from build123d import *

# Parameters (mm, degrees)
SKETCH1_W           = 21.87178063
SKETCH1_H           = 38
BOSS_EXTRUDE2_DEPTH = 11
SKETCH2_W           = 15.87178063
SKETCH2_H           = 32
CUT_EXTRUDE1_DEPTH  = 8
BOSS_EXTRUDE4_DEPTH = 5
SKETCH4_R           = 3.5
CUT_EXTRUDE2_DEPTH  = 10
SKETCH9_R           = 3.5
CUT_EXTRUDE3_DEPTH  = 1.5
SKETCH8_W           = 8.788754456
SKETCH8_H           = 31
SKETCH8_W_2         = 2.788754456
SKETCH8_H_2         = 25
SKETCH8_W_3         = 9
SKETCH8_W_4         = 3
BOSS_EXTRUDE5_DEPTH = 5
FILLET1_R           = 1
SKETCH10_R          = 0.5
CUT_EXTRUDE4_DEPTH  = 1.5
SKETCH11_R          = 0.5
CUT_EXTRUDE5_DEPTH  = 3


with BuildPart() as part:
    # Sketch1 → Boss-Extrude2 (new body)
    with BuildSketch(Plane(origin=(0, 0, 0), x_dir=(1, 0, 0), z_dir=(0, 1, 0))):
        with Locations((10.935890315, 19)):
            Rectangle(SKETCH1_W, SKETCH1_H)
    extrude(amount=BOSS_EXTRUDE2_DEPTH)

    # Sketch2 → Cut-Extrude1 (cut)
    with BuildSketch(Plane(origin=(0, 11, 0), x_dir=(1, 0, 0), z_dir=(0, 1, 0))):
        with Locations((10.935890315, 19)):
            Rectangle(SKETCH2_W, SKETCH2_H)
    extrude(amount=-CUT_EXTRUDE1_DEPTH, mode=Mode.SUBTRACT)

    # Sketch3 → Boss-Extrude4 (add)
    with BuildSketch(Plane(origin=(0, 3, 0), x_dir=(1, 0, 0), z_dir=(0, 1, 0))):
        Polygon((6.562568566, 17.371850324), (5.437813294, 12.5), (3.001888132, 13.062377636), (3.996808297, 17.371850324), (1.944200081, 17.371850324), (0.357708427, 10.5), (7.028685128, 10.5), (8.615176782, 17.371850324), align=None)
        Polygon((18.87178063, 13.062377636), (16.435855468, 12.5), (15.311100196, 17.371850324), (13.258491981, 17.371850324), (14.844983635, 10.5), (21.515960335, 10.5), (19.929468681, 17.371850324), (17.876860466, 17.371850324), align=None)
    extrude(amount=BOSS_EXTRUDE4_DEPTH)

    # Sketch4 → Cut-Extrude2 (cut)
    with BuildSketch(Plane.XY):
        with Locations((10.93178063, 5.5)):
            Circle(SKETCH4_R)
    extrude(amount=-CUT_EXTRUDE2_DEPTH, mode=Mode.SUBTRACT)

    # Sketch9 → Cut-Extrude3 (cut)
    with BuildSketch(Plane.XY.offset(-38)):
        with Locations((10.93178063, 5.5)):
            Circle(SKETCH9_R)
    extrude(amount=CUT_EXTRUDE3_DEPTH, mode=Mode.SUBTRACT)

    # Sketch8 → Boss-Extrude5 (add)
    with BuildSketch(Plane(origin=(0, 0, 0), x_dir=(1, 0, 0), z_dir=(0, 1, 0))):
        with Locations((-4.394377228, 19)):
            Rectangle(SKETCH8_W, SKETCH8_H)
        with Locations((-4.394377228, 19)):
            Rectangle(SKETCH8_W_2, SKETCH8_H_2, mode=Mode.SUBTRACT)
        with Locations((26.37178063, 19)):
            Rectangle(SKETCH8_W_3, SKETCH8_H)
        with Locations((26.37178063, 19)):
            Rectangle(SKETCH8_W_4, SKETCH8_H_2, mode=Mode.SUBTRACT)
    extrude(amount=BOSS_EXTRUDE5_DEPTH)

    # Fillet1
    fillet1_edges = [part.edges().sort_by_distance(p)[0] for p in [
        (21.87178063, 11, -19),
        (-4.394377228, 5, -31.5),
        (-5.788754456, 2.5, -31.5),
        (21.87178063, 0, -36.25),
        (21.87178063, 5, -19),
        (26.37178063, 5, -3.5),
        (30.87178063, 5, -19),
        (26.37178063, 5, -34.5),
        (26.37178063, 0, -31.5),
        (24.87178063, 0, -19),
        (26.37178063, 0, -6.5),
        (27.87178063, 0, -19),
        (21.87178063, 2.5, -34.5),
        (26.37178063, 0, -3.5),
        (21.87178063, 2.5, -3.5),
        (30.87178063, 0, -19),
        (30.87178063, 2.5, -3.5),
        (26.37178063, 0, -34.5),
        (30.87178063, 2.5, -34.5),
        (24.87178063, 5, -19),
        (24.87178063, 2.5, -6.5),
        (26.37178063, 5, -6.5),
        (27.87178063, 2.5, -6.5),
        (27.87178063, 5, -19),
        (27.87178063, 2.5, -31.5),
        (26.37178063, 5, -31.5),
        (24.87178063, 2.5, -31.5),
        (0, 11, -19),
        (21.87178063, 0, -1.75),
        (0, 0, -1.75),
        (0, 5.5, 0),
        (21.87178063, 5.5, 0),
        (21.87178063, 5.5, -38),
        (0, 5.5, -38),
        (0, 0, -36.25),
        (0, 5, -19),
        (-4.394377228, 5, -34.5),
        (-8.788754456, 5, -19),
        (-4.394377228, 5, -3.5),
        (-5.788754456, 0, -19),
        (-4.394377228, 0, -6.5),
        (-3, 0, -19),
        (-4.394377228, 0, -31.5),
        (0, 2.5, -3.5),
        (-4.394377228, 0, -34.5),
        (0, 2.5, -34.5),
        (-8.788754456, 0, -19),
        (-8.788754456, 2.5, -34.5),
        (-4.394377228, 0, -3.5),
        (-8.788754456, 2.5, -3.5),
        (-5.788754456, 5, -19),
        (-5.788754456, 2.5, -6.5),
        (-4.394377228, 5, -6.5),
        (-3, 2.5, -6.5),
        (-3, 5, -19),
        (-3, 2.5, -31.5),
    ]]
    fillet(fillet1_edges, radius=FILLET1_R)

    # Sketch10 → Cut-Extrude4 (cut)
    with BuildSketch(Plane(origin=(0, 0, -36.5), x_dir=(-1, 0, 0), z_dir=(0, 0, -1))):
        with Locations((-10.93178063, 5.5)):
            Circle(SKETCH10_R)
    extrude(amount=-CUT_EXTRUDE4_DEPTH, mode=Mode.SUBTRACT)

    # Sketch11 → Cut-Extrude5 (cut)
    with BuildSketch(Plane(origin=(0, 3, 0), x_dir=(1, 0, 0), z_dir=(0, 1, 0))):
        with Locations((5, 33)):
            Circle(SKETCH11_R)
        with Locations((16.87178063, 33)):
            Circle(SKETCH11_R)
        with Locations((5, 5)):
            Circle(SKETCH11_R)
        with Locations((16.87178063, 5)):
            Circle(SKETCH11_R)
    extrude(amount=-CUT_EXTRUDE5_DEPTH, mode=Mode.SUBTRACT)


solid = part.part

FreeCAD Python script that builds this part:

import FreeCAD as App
import Part
import Sketcher

V = App.Vector
Q = App.Units.Quantity


def edges_at(feature, points):
    """Names of the edges that pass closest to the given points."""
    edges = feature.Shape.Edges
    near = lambda p: min(range(len(edges)), key=lambda i: edges[i].distToShape(Part.Vertex(*p))[0])
    return sorted({f"Edge{near(p) + 1}" for p in points})

doc = App.newDocument("Part")
body = doc.addObject("PartDesign::Body", "Body")

# Sketch on XZ plane
sketch1 = body.newObject("Sketcher::SketchObject", "Sketch")
sketch1.AttachmentSupport = (doc.getObject("XZ_Plane"), [""])
sketch1.MapMode = "FlatFace"
sketch1.addGeometry([
    Part.LineSegment(V(0, -38, 0), V(0, 0, 0)),
    Part.LineSegment(V(0, 0, 0), V(21.871781, 0, 0)),
    Part.LineSegment(V(21.871781, 0, 0), V(21.871781, -38, 0)),
    Part.LineSegment(V(21.871781, -38, 0), V(0, -38, 0)),
], False)
sketch1.addConstraint([
    Sketcher.Constraint("Coincident", 0, 2, 1, 1),
    Sketcher.Constraint("Coincident", 1, 2, 2, 1),
    Sketcher.Constraint("Coincident", 2, 2, 3, 1),
    Sketcher.Constraint("Coincident", 3, 2, 0, 1),
    Sketcher.Constraint("Vertical", 0),
    Sketcher.Constraint("Horizontal", 1),
    Sketcher.Constraint("Vertical", 2),
    Sketcher.Constraint("Horizontal", 3),
    Sketcher.Constraint("Coincident", 0, 2, -1, 1),
    Sketcher.Constraint("DistanceY", 0, 1, 0, 2, 38.0),
    Sketcher.Constraint("DistanceX", 1, 1, 1, 2, 21.871781),
])
pad1 = body.newObject("PartDesign::Pad", "Pad")
pad1.Profile = sketch1
pad1.Length = 11
pad1.Reversed = True

# Sketch on XZ plane
sketch2 = body.newObject("Sketcher::SketchObject", "Sketch001")
sketch2.AttachmentSupport = (doc.getObject("XZ_Plane"), [""])
sketch2.MapMode = "FlatFace"
sketch2.AttachmentOffset = App.Placement(V(0, 0, -11), App.Rotation())
sketch2.addGeometry([
    Part.LineSegment(V(3, -35, 0), V(3, -3, 0)),
    Part.LineSegment(V(3, -3, 0), V(18.871781, -3, 0)),
    Part.LineSegment(V(18.871781, -3, 0), V(18.871781, -35, 0)),
    Part.LineSegment(V(18.871781, -35, 0), V(3, -35, 0)),
], False)
sketch2.addConstraint([
    Sketcher.Constraint("Coincident", 0, 2, 1, 1),
    Sketcher.Constraint("Coincident", 1, 2, 2, 1),
    Sketcher.Constraint("Coincident", 2, 2, 3, 1),
    Sketcher.Constraint("Coincident", 3, 2, 0, 1),
    Sketcher.Constraint("Vertical", 0),
    Sketcher.Constraint("Horizontal", 1),
    Sketcher.Constraint("Vertical", 2),
    Sketcher.Constraint("Horizontal", 3),
    Sketcher.Constraint("DistanceY", 0, 1, 0, 2, 32.0),
    Sketcher.Constraint("DistanceX", -1, 1, 0, 2, 3.0),
    Sketcher.Constraint("DistanceY", 0, 2, -1, 1, 3.0),
    Sketcher.Constraint("DistanceX", 1, 1, 1, 2, 15.871781),
])
pocket1 = body.newObject("PartDesign::Pocket", "Pocket")
pocket1.Profile = sketch2
pocket1.Length = 8
pocket1.Reversed = True

# Sketch on XZ plane
sketch3 = body.newObject("Sketcher::SketchObject", "Sketch002")
sketch3.AttachmentSupport = (doc.getObject("XZ_Plane"), [""])
sketch3.MapMode = "FlatFace"
sketch3.AttachmentOffset = App.Placement(V(0, 0, -3), App.Rotation())
sketch3.addGeometry([
    Part.LineSegment(V(6.562569, -17.37185, 0), V(5.437813, -12.5, 0)),  # 0
    Part.LineSegment(V(5.437813, -12.5, 0), V(3.001888, -13.062378, 0)),  # 1
    Part.LineSegment(V(3.001888, -13.062378, 0), V(3.996808, -17.37185, 0)),  # 2
    Part.LineSegment(V(3.996808, -17.37185, 0), V(1.9442, -17.37185, 0)),  # 3
    Part.LineSegment(V(1.9442, -17.37185, 0), V(0.357708, -10.5, 0)),  # 4
    Part.LineSegment(V(0.357708, -10.5, 0), V(7.028685, -10.5, 0)),  # 5
    Part.LineSegment(V(7.028685, -10.5, 0), V(8.615177, -17.37185, 0)),  # 6
    Part.LineSegment(V(8.615177, -17.37185, 0), V(6.562569, -17.37185, 0)),  # 7
    Part.LineSegment(V(18.871781, -13.062378, 0), V(16.435855, -12.5, 0)),  # 8
    Part.LineSegment(V(16.435855, -12.5, 0), V(15.3111, -17.37185, 0)),  # 9
    Part.LineSegment(V(15.3111, -17.37185, 0), V(13.258492, -17.37185, 0)),  # 10
    Part.LineSegment(V(13.258492, -17.37185, 0), V(14.844984, -10.5, 0)),  # 11
    Part.LineSegment(V(14.844984, -10.5, 0), V(21.51596, -10.5, 0)),  # 12
    Part.LineSegment(V(21.51596, -10.5, 0), V(19.929469, -17.37185, 0)),  # 13
    Part.LineSegment(V(19.929469, -17.37185, 0), V(17.87686, -17.37185, 0)),  # 14
    Part.LineSegment(V(17.87686, -17.37185, 0), V(18.871781, -13.062378, 0)),  # 15
], False)
sketch3.addConstraint([
    Sketcher.Constraint("Coincident", 0, 2, 1, 1),
    Sketcher.Constraint("Coincident", 1, 2, 2, 1),
    Sketcher.Constraint("Coincident", 2, 2, 3, 1),
    Sketcher.Constraint("Coincident", 3, 2, 4, 1),
    Sketcher.Constraint("Coincident", 4, 2, 5, 1),
    Sketcher.Constraint("Coincident", 5, 2, 6, 1),
    Sketcher.Constraint("Coincident", 6, 2, 7, 1),
    Sketcher.Constraint("Coincident", 7, 2, 0, 1),
    Sketcher.Constraint("Coincident", 8, 2, 9, 1),
    Sketcher.Constraint("Coincident", 9, 2, 10, 1),
    Sketcher.Constraint("Coincident", 10, 2, 11, 1),
    Sketcher.Constraint("Coincident", 11, 2, 12, 1),
    Sketcher.Constraint("Coincident", 12, 2, 13, 1),
    Sketcher.Constraint("Coincident", 13, 2, 14, 1),
    Sketcher.Constraint("Coincident", 14, 2, 15, 1),
    Sketcher.Constraint("Coincident", 15, 2, 8, 1),
    Sketcher.Constraint("Horizontal", 3),
    Sketcher.Constraint("Horizontal", 5),
    Sketcher.Constraint("Horizontal", 7),
    Sketcher.Constraint("Horizontal", 10),
    Sketcher.Constraint("Horizontal", 12),
    Sketcher.Constraint("Horizontal", 14),
    Sketcher.Constraint("Perpendicular", 0, 1),
    Sketcher.Constraint("Perpendicular", 1, 2),
    Sketcher.Constraint("Parallel", 2, 4),
    Sketcher.Constraint("Parallel", 4, 6),
    Sketcher.Constraint("Perpendicular", 8, 9),
    Sketcher.Constraint("Parallel", 9, 11),
    Sketcher.Constraint("Parallel", 11, 13),
    Sketcher.Constraint("Parallel", 13, 15),
    Sketcher.Constraint("Horizontal", 3, 2, 6, 2),
    Sketcher.Constraint("Horizontal", 0, 2, 8, 2),
    Sketcher.Constraint("Horizontal", 7, 2, 9, 2),
    Sketcher.Constraint("Horizontal", 5, 2, 11, 2),
    Sketcher.Constraint("Horizontal", 10, 2, 13, 2),
    Sketcher.Constraint("Horizontal", 1, 2, 15, 2),
    Sketcher.Constraint("Equal", 3, 7),
    Sketcher.Constraint("Equal", 7, 10),
    Sketcher.Constraint("Equal", 5, 12),
    Sketcher.Constraint("Equal", 10, 14),
    Sketcher.Constraint("Angle", 0, Q("103 deg")),
    Sketcher.Constraint("Distance", 0, 5.0),
    Sketcher.Constraint("DistanceY", 0, 2, 4, 2, 2.0),
    Sketcher.Constraint("Distance", 1, 2.5),
    Sketcher.Constraint("DistanceY", 0, 2, -1, 1, 12.5),
    Sketcher.Constraint("DistanceX", 3, 2, 3, 1, 2.052608),
    Sketcher.Constraint("DistanceX", -1, 1, 3, 2, 1.9442),
    Sketcher.Constraint("DistanceX", -1, 1, 9, 2, 15.3111),
])
pad2 = body.newObject("PartDesign::Pad", "Pad001")
pad2.Profile = sketch3
pad2.Length = 5
pad2.Reversed = True

# Sketch on XY plane
sketch4 = body.newObject("Sketcher::SketchObject", "Sketch003")
sketch4.AttachmentSupport = (doc.getObject("XY_Plane"), [""])
sketch4.MapMode = "FlatFace"
sketch4.addGeometry(Part.Circle(V(10.931781, 5.5, 0), V(0, 0, 1), 3.5), False)
sketch4.addConstraint([
    Sketcher.Constraint("Diameter", 0, 7.0),
    Sketcher.Constraint("DistanceY", -1, 1, 0, 3, 5.5),
    Sketcher.Constraint("DistanceX", -1, 1, 0, 3, 10.931781),
])
pocket2 = body.newObject("PartDesign::Pocket", "Pocket001")
pocket2.Profile = sketch4
pocket2.Length = 10

# Sketch on XY plane
sketch5 = body.newObject("Sketcher::SketchObject", "Sketch004")
sketch5.AttachmentSupport = (doc.getObject("XY_Plane"), [""])
sketch5.MapMode = "FlatFace"
sketch5.AttachmentOffset = App.Placement(V(0, 0, -38), App.Rotation())
sketch5.addGeometry(Part.Circle(V(10.931781, 5.5, 0), V(0, 0, 1), 3.5), False)
sketch5.addConstraint([
    Sketcher.Constraint("Diameter", 0, 7.0),
    Sketcher.Constraint("DistanceY", -1, 1, 0, 3, 5.5),
    Sketcher.Constraint("DistanceX", -1, 1, 0, 3, 10.931781),
])
pocket3 = body.newObject("PartDesign::Pocket", "Pocket002")
pocket3.Profile = sketch5
pocket3.Length = 1.5
pocket3.Reversed = True

# Sketch on XZ plane
sketch6 = body.newObject("Sketcher::SketchObject", "Sketch005")
sketch6.AttachmentSupport = (doc.getObject("XZ_Plane"), [""])
sketch6.MapMode = "FlatFace"
sketch6.addGeometry([
    Part.LineSegment(V(-8.788754, -34.5, 0), V(-8.788754, -3.5, 0)),  # 0
    Part.LineSegment(V(-8.788754, -3.5, 0), V(0, -3.5, 0)),  # 1
    Part.LineSegment(V(0, -3.5, 0), V(0, -34.5, 0)),  # 2
    Part.LineSegment(V(0, -34.5, 0), V(-8.788754, -34.5, 0)),  # 3
    Part.LineSegment(V(-3, -6.5, 0), V(-5.788754, -6.5, 0)),  # 4
    Part.LineSegment(V(-5.788754, -6.5, 0), V(-5.788754, -31.5, 0)),  # 5
    Part.LineSegment(V(-5.788754, -31.5, 0), V(-3, -31.5, 0)),  # 6
    Part.LineSegment(V(-3, -31.5, 0), V(-3, -6.5, 0)),  # 7
    Part.LineSegment(V(21.871781, -34.5, 0), V(21.871781, -3.5, 0)),  # 8
    Part.LineSegment(V(21.871781, -3.5, 0), V(30.871781, -3.5, 0)),  # 9
    Part.LineSegment(V(30.871781, -3.5, 0), V(30.871781, -34.5, 0)),  # 10
    Part.LineSegment(V(30.871781, -34.5, 0), V(21.871781, -34.5, 0)),  # 11
    Part.LineSegment(V(27.871781, -6.5, 0), V(24.871781, -6.5, 0)),  # 12
    Part.LineSegment(V(24.871781, -6.5, 0), V(24.871781, -31.5, 0)),  # 13
    Part.LineSegment(V(24.871781, -31.5, 0), V(27.871781, -31.5, 0)),  # 14
    Part.LineSegment(V(27.871781, -31.5, 0), V(27.871781, -6.5, 0)),  # 15
], False)
sketch6.addConstraint([
    Sketcher.Constraint("Coincident", 0, 2, 1, 1),
    Sketcher.Constraint("Coincident", 1, 2, 2, 1),
    Sketcher.Constraint("Coincident", 2, 2, 3, 1),
    Sketcher.Constraint("Coincident", 3, 2, 0, 1),
    Sketcher.Constraint("Coincident", 4, 2, 5, 1),
    Sketcher.Constraint("Coincident", 5, 2, 6, 1),
    Sketcher.Constraint("Coincident", 6, 2, 7, 1),
    Sketcher.Constraint("Coincident", 7, 2, 4, 1),
    Sketcher.Constraint("Coincident", 8, 2, 9, 1),
    Sketcher.Constraint("Coincident", 9, 2, 10, 1),
    Sketcher.Constraint("Coincident", 10, 2, 11, 1),
    Sketcher.Constraint("Coincident", 11, 2, 8, 1),
    Sketcher.Constraint("Coincident", 12, 2, 13, 1),
    Sketcher.Constraint("Coincident", 13, 2, 14, 1),
    Sketcher.Constraint("Coincident", 14, 2, 15, 1),
    Sketcher.Constraint("Coincident", 15, 2, 12, 1),
    Sketcher.Constraint("Vertical", 0),
    Sketcher.Constraint("Horizontal", 1),
    Sketcher.Constraint("Vertical", 2),
    Sketcher.Constraint("Horizontal", 3),
    Sketcher.Constraint("Horizontal", 4),
    Sketcher.Constraint("Vertical", 5),
    Sketcher.Constraint("Horizontal", 6),
    Sketcher.Constraint("Vertical", 7),
    Sketcher.Constraint("Vertical", 8),
    Sketcher.Constraint("Horizontal", 9),
    Sketcher.Constraint("Vertical", 10),
    Sketcher.Constraint("Horizontal", 11),
    Sketcher.Constraint("Horizontal", 12),
    Sketcher.Constraint("Vertical", 13),
    Sketcher.Constraint("Horizontal", 14),
    Sketcher.Constraint("Vertical", 15),
    Sketcher.Constraint("PointOnObject", 1, 2, -2),
    Sketcher.Constraint("Horizontal", 1, 2, 8, 2),
    Sketcher.Constraint("Horizontal", 3, 2, 10, 2),
    Sketcher.Constraint("Horizontal", 7, 2, 12, 2),
    Sketcher.Constraint("Horizontal", 6, 2, 13, 2),
    Sketcher.Constraint("DistanceX", 9, 1, 9, 2, 9.0),
    Sketcher.Constraint("DistanceX", 12, 2, 12, 1, 3.0),
    Sketcher.Constraint("DistanceY", 0, 1, 0, 2, 31.0),
    Sketcher.Constraint("DistanceY", 5, 2, 5, 1, 25.0),
    Sketcher.Constraint("DistanceX", 6, 2, -1, 1, 3.0),
    Sketcher.Constraint("DistanceX", 0, 2, 4, 2, 3.0),
    Sketcher.Constraint("DistanceY", 4, 2, 0, 2, 3.0),
    Sketcher.Constraint("DistanceX", 8, 2, 12, 2, 3.0),
    Sketcher.Constraint("DistanceY", 0, 2, -1, 1, 3.5),
    Sketcher.Constraint("DistanceX", 1, 1, 1, 2, 8.788754),
    Sketcher.Constraint("DistanceX", -1, 1, 8, 2, 21.871781),
])
pad3 = body.newObject("PartDesign::Pad", "Pad002")
pad3.Profile = sketch6
pad3.Length = 5
pad3.Reversed = True
doc.recompute()

fillet = body.newObject("PartDesign::Fillet", "Fillet")
fillet.Base = (pad3, edges_at(pad3, [
    (21.872, 11, -19),
    (-4.394, 5, -31.5),
    (-5.789, 2.5, -31.5),
    (21.872, 0, -36.25),
    (21.872, 5, -19),
    (26.372, 5, -3.5),
    (30.872, 5, -19),
    (26.372, 5, -34.5),
    (26.372, 0, -31.5),
    (24.872, 0, -19),
    (26.372, 0, -6.5),
    (27.872, 0, -19),
    (21.872, 2.5, -34.5),
    (26.372, 0, -3.5),
    (21.872, 2.5, -3.5),
    (30.872, 0, -19),
    (30.872, 2.5, -3.5),
    (26.372, 0, -34.5),
    (30.872, 2.5, -34.5),
    (24.872, 5, -19),
    (24.872, 2.5, -6.5),
    (26.372, 5, -6.5),
    (27.872, 2.5, -6.5),
    (27.872, 5, -19),
    (27.872, 2.5, -31.5),
    (26.372, 5, -31.5),
    (24.872, 2.5, -31.5),
    (0, 11, -19),
    (21.872, 0, -1.75),
    (0, 0, -1.75),
    (0, 5.5, 0),
    (21.872, 5.5, 0),
    (21.872, 5.5, -38),
    (0, 5.5, -38),
    (0, 0, -36.25),
    (0, 5, -19),
    (-4.394, 5, -34.5),
    (-8.789, 5, -19),
    (-4.394, 5, -3.5),
    (-5.789, 0, -19),
    (-4.394, 0, -6.5),
    (-3, 0, -19),
    (-4.394, 0, -31.5),
    (0, 2.5, -3.5),
    (-4.394, 0, -34.5),
    (0, 2.5, -34.5),
    (-8.789, 0, -19),
    (-8.789, 2.5, -34.5),
    (-4.394, 0, -3.5),
    (-8.789, 2.5, -3.5),
    (-5.789, 5, -19),
    (-5.789, 2.5, -6.5),
    (-4.394, 5, -6.5),
    (-3, 2.5, -6.5),
    (-3, 5, -19),
    (-3, 2.5, -31.5),
]))
fillet.Radius = 1

# Sketch on XY plane
sketch7 = body.newObject("Sketcher::SketchObject", "Sketch006")
sketch7.AttachmentSupport = (doc.getObject("XY_Plane"), [""])
sketch7.MapMode = "FlatFace"
sketch7.AttachmentOffset = App.Placement(V(0, 0, -36.5), App.Rotation())
sketch7.addGeometry(Part.Circle(V(10.931781, 5.5, 0), V(0, 0, 1), 0.5), False)
sketch7.addConstraint([
    Sketcher.Constraint("Diameter", 0, 1.0),
    Sketcher.Constraint("DistanceY", -1, 1, 0, 3, 5.5),
    Sketcher.Constraint("DistanceX", -1, 1, 0, 3, 10.931781),
])
pocket4 = body.newObject("PartDesign::Pocket", "Pocket003")
pocket4.Profile = sketch7
pocket4.Length = 1.5
pocket4.Reversed = True

# Sketch on XZ plane
sketch8 = body.newObject("Sketcher::SketchObject", "Sketch007")
sketch8.AttachmentSupport = (doc.getObject("XZ_Plane"), [""])
sketch8.MapMode = "FlatFace"
sketch8.AttachmentOffset = App.Placement(V(0, 0, -3), App.Rotation())
sketch8.addGeometry([
    Part.Circle(V(5, -33, 0), V(0, 0, 1), 0.5),
    Part.Circle(V(16.871781, -33, 0), V(0, 0, 1), 0.5),
    Part.Circle(V(5, -5, 0), V(0, 0, 1), 0.5),
    Part.Circle(V(16.871781, -5, 0), V(0, 0, 1), 0.5),
], False)
sketch8.addConstraint([
    Sketcher.Constraint("Equal", 0, 1),
    Sketcher.Constraint("Equal", 1, 2),
    Sketcher.Constraint("Equal", 2, 3),
    Sketcher.Constraint("Horizontal", 0, 3, 1, 3),
    Sketcher.Constraint("Horizontal", 2, 3, 3, 3),
    Sketcher.Constraint("Vertical", 0, 3, 2, 3),
    Sketcher.Constraint("Vertical", 1, 3, 3, 3),
    Sketcher.Constraint("Diameter", 0, 1.0),
    Sketcher.Constraint("DistanceX", -1, 1, 0, 3, 5.0),
    Sketcher.Constraint("DistanceY", 0, 3, -1, 1, 33.0),
    Sketcher.Constraint("DistanceY", 2, 3, -1, 1, 5.0),
    Sketcher.Constraint("DistanceX", -1, 1, 1, 3, 16.871781),
])
pocket5 = body.newObject("PartDesign::Pocket", "Pocket004")
pocket5.Profile = sketch8
pocket5.Length = 3
pocket5.Reversed = True

doc.recompute()
